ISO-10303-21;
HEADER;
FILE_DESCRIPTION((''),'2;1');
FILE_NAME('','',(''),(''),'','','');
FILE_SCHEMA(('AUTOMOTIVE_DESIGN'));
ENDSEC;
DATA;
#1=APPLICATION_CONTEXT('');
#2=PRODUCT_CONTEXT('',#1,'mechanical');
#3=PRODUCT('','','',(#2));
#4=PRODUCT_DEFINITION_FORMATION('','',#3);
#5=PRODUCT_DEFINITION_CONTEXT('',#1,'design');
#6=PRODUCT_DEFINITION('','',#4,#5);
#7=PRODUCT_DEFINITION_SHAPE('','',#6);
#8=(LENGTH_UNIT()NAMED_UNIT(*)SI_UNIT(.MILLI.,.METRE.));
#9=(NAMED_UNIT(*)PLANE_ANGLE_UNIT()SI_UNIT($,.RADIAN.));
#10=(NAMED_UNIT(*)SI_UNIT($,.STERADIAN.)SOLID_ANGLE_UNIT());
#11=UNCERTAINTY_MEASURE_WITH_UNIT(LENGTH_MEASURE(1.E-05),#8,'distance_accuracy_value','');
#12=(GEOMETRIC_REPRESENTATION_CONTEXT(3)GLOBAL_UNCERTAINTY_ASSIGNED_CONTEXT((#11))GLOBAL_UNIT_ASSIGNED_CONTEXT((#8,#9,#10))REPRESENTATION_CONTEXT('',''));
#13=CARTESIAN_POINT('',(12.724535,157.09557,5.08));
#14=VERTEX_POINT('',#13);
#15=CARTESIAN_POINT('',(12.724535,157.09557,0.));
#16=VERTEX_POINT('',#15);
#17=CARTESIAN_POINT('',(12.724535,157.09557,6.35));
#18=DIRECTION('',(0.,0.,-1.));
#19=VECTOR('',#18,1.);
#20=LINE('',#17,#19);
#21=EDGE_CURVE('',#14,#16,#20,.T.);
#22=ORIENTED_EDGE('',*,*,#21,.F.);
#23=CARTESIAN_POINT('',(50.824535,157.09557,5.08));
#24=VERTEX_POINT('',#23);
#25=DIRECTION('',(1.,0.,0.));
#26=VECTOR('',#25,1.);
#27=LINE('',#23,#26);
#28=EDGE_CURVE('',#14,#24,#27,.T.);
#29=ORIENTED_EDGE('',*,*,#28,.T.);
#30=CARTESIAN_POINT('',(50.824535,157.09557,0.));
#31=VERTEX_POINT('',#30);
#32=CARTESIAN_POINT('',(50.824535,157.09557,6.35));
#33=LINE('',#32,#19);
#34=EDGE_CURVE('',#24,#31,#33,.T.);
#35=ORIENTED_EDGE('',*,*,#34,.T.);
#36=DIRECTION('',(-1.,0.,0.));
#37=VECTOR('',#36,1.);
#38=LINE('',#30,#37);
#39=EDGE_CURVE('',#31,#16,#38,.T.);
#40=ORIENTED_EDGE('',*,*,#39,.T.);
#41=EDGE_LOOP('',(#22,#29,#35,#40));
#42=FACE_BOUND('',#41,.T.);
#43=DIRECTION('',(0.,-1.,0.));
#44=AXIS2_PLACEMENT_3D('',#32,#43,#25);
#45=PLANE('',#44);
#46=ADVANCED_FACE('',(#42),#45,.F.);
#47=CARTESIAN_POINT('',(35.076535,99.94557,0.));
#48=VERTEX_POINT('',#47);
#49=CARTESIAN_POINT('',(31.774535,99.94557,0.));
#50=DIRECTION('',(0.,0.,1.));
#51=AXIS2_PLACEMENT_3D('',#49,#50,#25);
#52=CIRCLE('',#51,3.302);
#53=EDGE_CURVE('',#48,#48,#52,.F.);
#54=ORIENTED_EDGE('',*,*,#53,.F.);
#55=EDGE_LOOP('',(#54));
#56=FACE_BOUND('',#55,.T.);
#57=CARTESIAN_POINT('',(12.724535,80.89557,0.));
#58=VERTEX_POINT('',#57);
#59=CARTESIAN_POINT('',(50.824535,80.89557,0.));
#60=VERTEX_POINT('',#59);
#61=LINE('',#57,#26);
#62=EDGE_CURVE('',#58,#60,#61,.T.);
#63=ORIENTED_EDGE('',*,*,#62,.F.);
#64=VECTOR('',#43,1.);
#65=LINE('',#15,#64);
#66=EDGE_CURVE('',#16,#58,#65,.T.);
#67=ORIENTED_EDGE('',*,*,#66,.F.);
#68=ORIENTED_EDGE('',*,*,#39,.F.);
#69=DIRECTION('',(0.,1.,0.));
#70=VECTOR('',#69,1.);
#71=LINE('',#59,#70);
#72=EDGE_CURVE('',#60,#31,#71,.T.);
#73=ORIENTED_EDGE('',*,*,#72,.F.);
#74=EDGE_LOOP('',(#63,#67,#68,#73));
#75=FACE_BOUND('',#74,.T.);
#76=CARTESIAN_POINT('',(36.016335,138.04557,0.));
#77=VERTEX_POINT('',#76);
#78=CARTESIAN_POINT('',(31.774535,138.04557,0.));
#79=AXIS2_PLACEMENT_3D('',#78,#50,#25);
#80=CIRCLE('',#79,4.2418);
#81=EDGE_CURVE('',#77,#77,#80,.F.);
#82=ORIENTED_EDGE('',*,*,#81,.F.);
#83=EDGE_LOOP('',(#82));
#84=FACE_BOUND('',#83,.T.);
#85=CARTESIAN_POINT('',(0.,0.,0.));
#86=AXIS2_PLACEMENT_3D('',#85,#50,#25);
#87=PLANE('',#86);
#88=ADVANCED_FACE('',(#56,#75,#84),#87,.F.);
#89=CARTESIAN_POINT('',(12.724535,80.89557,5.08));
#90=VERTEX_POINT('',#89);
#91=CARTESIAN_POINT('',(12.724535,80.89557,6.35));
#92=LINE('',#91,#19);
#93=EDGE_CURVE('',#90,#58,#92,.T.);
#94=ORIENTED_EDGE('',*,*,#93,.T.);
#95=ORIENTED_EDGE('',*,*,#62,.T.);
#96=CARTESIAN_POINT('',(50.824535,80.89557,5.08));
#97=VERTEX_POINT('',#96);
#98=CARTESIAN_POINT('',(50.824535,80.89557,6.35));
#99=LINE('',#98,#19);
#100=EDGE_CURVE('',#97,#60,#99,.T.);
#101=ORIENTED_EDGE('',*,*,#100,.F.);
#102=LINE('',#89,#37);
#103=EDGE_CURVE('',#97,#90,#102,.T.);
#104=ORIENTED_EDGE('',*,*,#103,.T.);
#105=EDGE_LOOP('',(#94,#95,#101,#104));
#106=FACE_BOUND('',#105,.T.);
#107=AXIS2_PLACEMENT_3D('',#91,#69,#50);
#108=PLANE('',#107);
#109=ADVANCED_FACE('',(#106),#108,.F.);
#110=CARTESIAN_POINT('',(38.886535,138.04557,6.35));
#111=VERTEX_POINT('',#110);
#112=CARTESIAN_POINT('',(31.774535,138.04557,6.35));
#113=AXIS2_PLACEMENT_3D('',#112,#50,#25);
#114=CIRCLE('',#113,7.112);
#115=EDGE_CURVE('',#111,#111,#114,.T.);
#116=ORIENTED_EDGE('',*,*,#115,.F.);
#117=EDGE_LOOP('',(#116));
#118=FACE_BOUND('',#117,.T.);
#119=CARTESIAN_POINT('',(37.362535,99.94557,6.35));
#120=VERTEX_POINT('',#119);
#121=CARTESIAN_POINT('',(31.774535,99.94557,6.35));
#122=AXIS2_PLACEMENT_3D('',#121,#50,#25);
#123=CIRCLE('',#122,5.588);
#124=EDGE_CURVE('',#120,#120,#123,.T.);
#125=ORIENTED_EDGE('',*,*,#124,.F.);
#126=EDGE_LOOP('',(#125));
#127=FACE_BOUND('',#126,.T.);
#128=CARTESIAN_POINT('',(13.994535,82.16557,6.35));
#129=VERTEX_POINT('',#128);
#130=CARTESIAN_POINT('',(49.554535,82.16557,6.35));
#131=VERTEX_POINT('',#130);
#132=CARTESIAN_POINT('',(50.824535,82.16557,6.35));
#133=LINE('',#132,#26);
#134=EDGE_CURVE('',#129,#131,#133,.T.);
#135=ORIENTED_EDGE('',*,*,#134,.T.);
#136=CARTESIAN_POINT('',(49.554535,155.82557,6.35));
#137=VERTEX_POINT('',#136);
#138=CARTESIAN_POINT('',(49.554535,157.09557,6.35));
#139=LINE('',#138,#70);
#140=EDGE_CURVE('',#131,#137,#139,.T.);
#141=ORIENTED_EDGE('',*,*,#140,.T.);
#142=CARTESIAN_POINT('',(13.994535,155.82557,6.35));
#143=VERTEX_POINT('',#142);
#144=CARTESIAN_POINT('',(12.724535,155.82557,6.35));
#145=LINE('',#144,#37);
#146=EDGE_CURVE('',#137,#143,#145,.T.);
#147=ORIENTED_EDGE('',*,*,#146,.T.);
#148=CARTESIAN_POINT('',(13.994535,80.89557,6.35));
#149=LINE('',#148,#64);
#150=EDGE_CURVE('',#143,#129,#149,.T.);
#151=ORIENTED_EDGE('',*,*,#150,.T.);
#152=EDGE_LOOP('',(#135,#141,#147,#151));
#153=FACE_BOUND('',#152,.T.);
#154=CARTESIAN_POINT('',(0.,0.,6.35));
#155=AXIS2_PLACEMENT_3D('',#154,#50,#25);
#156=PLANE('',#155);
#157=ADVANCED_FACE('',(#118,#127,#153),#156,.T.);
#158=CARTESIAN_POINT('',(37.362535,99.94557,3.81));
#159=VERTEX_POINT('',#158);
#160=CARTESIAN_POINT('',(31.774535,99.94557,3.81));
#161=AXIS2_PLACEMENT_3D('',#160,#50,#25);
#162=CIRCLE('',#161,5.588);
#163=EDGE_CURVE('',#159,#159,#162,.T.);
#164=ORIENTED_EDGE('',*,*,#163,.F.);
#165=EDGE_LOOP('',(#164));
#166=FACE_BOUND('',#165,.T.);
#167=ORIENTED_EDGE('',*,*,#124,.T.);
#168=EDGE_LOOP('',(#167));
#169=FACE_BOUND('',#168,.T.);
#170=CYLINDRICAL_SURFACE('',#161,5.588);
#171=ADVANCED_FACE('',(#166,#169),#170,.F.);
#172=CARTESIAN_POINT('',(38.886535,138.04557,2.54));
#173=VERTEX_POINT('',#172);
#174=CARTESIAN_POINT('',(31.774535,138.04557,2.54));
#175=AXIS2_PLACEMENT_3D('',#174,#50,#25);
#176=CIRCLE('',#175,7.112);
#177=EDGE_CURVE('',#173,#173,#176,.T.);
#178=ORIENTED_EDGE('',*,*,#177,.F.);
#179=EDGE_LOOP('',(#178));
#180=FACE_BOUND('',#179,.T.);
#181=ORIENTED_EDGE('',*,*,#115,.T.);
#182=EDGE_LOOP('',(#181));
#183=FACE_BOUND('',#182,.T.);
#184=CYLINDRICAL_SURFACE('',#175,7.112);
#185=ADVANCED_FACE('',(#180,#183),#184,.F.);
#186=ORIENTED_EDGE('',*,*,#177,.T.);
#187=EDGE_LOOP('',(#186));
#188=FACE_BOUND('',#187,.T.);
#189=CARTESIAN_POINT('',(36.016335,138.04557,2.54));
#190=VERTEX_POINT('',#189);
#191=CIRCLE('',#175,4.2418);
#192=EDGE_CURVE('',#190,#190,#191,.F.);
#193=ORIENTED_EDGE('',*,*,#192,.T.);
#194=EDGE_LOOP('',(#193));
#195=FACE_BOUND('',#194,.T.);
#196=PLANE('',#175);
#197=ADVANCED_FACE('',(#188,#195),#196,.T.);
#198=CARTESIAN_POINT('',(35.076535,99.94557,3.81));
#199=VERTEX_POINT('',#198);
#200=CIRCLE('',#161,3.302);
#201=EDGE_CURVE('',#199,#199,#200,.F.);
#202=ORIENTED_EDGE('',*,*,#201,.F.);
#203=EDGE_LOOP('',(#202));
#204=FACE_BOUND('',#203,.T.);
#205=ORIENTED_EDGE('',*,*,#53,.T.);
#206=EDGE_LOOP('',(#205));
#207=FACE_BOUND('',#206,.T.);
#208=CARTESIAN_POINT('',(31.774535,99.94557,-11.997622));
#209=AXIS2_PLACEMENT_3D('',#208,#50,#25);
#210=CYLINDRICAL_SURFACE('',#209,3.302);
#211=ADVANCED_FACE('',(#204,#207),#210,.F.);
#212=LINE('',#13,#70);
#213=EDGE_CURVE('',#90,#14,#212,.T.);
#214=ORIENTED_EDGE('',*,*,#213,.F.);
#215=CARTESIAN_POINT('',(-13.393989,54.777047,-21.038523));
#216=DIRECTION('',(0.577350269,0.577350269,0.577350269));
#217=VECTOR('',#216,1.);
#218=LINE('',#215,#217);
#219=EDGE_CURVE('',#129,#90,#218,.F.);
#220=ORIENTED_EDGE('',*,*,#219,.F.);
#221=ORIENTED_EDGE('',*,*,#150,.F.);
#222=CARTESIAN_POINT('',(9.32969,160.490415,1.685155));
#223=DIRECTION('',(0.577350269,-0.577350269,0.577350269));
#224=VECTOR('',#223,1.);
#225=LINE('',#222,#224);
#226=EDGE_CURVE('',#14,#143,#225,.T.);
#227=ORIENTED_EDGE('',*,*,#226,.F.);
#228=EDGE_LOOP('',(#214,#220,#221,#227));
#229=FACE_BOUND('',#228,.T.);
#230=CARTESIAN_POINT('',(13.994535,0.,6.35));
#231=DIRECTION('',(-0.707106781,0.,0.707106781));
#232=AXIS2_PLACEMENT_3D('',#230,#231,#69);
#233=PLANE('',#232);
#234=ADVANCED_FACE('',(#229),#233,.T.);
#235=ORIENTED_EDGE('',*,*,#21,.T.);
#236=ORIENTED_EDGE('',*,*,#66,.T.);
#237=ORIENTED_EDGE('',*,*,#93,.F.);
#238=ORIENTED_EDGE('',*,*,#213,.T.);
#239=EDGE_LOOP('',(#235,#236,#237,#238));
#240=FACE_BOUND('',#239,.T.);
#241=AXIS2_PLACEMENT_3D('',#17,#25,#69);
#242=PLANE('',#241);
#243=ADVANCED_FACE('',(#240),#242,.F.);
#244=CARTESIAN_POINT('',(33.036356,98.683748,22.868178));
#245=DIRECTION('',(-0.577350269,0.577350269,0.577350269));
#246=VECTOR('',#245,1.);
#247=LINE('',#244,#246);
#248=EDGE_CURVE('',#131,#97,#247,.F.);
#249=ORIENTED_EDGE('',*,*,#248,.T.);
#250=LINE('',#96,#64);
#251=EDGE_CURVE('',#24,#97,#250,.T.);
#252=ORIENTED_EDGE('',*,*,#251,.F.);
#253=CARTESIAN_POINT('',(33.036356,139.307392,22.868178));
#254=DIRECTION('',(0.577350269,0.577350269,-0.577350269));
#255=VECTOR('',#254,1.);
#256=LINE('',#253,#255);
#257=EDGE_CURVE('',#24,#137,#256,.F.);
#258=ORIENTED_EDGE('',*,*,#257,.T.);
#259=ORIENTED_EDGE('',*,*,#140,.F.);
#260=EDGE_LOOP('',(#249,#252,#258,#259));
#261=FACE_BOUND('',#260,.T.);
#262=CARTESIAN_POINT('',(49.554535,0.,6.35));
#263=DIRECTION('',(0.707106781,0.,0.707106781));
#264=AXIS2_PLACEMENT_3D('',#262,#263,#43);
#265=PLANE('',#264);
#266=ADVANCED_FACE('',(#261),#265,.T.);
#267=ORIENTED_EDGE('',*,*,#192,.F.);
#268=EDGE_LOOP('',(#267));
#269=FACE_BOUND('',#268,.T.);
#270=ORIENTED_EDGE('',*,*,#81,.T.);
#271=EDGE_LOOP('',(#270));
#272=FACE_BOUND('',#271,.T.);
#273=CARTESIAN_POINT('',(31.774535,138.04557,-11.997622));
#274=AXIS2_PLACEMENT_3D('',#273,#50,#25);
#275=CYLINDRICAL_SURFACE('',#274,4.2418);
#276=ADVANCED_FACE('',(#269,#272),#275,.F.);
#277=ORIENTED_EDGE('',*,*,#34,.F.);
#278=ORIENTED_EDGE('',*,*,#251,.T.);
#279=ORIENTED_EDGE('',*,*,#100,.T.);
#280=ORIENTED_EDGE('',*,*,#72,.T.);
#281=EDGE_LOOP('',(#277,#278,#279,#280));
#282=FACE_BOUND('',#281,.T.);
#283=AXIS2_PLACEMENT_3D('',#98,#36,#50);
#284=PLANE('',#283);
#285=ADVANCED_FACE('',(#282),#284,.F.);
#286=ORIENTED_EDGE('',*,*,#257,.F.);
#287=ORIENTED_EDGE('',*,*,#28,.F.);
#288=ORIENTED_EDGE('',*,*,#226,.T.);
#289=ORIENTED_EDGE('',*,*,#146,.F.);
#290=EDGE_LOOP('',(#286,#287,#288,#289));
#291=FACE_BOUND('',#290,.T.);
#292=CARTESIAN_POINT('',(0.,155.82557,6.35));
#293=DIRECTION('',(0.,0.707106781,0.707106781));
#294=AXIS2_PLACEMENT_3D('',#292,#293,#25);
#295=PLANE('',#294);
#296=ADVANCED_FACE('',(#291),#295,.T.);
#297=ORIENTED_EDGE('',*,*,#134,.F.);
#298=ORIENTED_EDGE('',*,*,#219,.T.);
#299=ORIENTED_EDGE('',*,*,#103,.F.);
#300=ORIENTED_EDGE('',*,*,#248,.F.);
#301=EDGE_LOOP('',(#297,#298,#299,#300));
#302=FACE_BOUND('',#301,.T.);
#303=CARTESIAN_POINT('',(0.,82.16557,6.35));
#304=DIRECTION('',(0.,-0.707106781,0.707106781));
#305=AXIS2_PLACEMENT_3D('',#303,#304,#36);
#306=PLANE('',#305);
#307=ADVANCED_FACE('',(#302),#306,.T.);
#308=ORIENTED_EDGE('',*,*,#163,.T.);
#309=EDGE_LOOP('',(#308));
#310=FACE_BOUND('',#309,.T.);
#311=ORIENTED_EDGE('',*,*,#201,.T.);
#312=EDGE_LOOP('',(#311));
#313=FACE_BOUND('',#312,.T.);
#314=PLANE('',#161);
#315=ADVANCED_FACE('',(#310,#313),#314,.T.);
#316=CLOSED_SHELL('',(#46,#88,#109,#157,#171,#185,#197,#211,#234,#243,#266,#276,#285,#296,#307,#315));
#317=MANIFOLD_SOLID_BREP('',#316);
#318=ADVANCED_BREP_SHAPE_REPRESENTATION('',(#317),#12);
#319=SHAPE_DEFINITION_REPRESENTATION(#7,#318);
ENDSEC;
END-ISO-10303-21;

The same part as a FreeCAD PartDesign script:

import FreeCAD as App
import Part
import Sketcher

V = App.Vector
Q = App.Units.Quantity


def edges_at(feature, points):
    """Names of the edges that pass closest to the given points."""
    edges = feature.Shape.Edges
    near = lambda p: min(range(len(edges)), key=lambda i: edges[i].distToShape(Part.Vertex(*p))[0])
    return sorted({f"Edge{near(p) + 1}" for p in points})

doc = App.newDocument("Part")
body = doc.addObject("PartDesign::Body", "Body")

sketch1 = body.newObject("Sketcher::SketchObject", "Sketch")
sketch1.AttachmentSupport = (doc.getObject("XY_Plane"), [""])
sketch1.MapMode = "FlatFace"
sketch1.addGeometry([
    Part.LineSegment(V(13, 157, 0), V(13, 81, 0)),
    Part.LineSegment(V(13, 81, 0), V(51, 81, 0)),
    Part.LineSegment(V(51, 81, 0), V(51, 157, 0)),
    Part.LineSegment(V(51, 157, 0), V(13, 157, 0)),
], False)
sketch1.addConstraint([
    Sketcher.Constraint("Coincident", 0, 2, 1, 1),
    Sketcher.Constraint("Coincident", 1, 2, 2, 1),
    Sketcher.Constraint("Coincident", 2, 2, 3, 1),
    Sketcher.Constraint("Coincident", 3, 2, 0, 1),
    Sketcher.Constraint("Vertical", 0),
    Sketcher.Constraint("Horizontal", 1),
    Sketcher.Constraint("Vertical", 2),
    Sketcher.Constraint("Horizontal", 3),
    Sketcher.Constraint("DistanceY", 0, 2, 0, 1, Q("3 in")),
    Sketcher.Constraint("DistanceX", 1, 1, 1, 2, Q("1.5 in")),
    Sketcher.Constraint("DistanceY", -1, 1, 0, 2, Q("80.89557 mm")),
    Sketcher.Constraint("DistanceX", -1, 1, 0, 2, Q("12.724535 mm")),
])
pad1 = body.newObject("PartDesign::Pad", "Pad")
pad1.Profile = sketch1
pad1.Length = Q("0.25 in")

sketch2 = body.newObject("Sketcher::SketchObject", "Sketch001")
sketch2.AttachmentSupport = (doc.getObject("XY_Plane"), [""])
sketch2.MapMode = "FlatFace"
sketch2.AttachmentOffset = App.Placement(V(0, 0, 0.25 * 25.4), App.Rotation())
sketch2.addGeometry([
    Part.Circle(V(31.8, 138, 0), V(0, 0, 1), 4.2),
    Part.Circle(V(31.8, 99.9, 0), V(0, 0, 1), 3.3),
], False)
sketch2.addConstraint([
    Sketcher.Constraint("Vertical", 0, 3, 1, 3),
    Sketcher.Constraint("Diameter", 1, Q("0.26 in")),
    Sketcher.Constraint("Diameter", 0, Q("0.334 in")),
    Sketcher.Constraint("DistanceY", 1, 3, 0, 3, Q("1.5 in")),
    Sketcher.Constraint("DistanceY", -1, 1, 0, 3, Q("138.04557 mm")),
    Sketcher.Constraint("DistanceX", -1, 1, 0, 3, Q("31.774535 mm")),
])
pocket1 = body.newObject("PartDesign::Pocket", "Pocket")
pocket1.Profile = sketch2
pocket1.Length = Q("0.25 in")
doc.recompute()

chamfer = body.newObject("PartDesign::Chamfer", "Chamfer")
chamfer.Base = (pocket1, edges_at(pocket1, [
    (50.825, 118.996, 6.35),
    (31.775, 157.096, 6.35),
    (12.725, 118.996, 6.35),
    (31.775, 80.896, 6.35),
]))
chamfer.Size = Q("0.05 in")

sketch3 = body.newObject("Sketcher::SketchObject", "Sketch002")
sketch3.AttachmentSupport = (doc.getObject("XY_Plane"), [""])
sketch3.MapMode = "FlatFace"
sketch3.AttachmentOffset = App.Placement(V(0, 0, 0.25 * 25.4), App.Rotation())
sketch3.addGeometry(Part.Circle(V(32, 100, 0), V(0, 0, 1), 6), False)
sketch3.addConstraint([
    Sketcher.Constraint("Diameter", 0, Q("0.44 in")),
    Sketcher.Constraint("DistanceY", -1, 1, 0, 3, Q("99.94557 mm")),
    Sketcher.Constraint("DistanceX", -1, 1, 0, 3, Q("31.774535 mm")),
])
pocket2 = body.newObject("PartDesign::Pocket", "Pocket001")
pocket2.Profile = sketch3
pocket2.Length = Q("0.1 in")

sketch4 = body.newObject("Sketcher::SketchObject", "Sketch003")
sketch4.AttachmentSupport = (doc.getObject("XY_Plane"), [""])
sketch4.MapMode = "FlatFace"
sketch4.AttachmentOffset = App.Placement(V(0, 0, 0.25 * 25.4), App.Rotation())
sketch4.addGeometry(Part.Circle(V(32, 138, 0), V(0, 0, 1), 7), False)
sketch4.addConstraint([
    Sketcher.Constraint("Diameter", 0, Q("0.56 in")),
    Sketcher.Constraint("DistanceY", -1, 1, 0, 3, Q("138.04557 mm")),
    Sketcher.Constraint("DistanceX", -1, 1, 0, 3, Q("31.774535 mm")),
])
pocket3 = body.newObject("PartDesign::Pocket", "Pocket002")
pocket3.Profile = sketch4
pocket3.Length = Q("0.15 in")

doc.recompute()
